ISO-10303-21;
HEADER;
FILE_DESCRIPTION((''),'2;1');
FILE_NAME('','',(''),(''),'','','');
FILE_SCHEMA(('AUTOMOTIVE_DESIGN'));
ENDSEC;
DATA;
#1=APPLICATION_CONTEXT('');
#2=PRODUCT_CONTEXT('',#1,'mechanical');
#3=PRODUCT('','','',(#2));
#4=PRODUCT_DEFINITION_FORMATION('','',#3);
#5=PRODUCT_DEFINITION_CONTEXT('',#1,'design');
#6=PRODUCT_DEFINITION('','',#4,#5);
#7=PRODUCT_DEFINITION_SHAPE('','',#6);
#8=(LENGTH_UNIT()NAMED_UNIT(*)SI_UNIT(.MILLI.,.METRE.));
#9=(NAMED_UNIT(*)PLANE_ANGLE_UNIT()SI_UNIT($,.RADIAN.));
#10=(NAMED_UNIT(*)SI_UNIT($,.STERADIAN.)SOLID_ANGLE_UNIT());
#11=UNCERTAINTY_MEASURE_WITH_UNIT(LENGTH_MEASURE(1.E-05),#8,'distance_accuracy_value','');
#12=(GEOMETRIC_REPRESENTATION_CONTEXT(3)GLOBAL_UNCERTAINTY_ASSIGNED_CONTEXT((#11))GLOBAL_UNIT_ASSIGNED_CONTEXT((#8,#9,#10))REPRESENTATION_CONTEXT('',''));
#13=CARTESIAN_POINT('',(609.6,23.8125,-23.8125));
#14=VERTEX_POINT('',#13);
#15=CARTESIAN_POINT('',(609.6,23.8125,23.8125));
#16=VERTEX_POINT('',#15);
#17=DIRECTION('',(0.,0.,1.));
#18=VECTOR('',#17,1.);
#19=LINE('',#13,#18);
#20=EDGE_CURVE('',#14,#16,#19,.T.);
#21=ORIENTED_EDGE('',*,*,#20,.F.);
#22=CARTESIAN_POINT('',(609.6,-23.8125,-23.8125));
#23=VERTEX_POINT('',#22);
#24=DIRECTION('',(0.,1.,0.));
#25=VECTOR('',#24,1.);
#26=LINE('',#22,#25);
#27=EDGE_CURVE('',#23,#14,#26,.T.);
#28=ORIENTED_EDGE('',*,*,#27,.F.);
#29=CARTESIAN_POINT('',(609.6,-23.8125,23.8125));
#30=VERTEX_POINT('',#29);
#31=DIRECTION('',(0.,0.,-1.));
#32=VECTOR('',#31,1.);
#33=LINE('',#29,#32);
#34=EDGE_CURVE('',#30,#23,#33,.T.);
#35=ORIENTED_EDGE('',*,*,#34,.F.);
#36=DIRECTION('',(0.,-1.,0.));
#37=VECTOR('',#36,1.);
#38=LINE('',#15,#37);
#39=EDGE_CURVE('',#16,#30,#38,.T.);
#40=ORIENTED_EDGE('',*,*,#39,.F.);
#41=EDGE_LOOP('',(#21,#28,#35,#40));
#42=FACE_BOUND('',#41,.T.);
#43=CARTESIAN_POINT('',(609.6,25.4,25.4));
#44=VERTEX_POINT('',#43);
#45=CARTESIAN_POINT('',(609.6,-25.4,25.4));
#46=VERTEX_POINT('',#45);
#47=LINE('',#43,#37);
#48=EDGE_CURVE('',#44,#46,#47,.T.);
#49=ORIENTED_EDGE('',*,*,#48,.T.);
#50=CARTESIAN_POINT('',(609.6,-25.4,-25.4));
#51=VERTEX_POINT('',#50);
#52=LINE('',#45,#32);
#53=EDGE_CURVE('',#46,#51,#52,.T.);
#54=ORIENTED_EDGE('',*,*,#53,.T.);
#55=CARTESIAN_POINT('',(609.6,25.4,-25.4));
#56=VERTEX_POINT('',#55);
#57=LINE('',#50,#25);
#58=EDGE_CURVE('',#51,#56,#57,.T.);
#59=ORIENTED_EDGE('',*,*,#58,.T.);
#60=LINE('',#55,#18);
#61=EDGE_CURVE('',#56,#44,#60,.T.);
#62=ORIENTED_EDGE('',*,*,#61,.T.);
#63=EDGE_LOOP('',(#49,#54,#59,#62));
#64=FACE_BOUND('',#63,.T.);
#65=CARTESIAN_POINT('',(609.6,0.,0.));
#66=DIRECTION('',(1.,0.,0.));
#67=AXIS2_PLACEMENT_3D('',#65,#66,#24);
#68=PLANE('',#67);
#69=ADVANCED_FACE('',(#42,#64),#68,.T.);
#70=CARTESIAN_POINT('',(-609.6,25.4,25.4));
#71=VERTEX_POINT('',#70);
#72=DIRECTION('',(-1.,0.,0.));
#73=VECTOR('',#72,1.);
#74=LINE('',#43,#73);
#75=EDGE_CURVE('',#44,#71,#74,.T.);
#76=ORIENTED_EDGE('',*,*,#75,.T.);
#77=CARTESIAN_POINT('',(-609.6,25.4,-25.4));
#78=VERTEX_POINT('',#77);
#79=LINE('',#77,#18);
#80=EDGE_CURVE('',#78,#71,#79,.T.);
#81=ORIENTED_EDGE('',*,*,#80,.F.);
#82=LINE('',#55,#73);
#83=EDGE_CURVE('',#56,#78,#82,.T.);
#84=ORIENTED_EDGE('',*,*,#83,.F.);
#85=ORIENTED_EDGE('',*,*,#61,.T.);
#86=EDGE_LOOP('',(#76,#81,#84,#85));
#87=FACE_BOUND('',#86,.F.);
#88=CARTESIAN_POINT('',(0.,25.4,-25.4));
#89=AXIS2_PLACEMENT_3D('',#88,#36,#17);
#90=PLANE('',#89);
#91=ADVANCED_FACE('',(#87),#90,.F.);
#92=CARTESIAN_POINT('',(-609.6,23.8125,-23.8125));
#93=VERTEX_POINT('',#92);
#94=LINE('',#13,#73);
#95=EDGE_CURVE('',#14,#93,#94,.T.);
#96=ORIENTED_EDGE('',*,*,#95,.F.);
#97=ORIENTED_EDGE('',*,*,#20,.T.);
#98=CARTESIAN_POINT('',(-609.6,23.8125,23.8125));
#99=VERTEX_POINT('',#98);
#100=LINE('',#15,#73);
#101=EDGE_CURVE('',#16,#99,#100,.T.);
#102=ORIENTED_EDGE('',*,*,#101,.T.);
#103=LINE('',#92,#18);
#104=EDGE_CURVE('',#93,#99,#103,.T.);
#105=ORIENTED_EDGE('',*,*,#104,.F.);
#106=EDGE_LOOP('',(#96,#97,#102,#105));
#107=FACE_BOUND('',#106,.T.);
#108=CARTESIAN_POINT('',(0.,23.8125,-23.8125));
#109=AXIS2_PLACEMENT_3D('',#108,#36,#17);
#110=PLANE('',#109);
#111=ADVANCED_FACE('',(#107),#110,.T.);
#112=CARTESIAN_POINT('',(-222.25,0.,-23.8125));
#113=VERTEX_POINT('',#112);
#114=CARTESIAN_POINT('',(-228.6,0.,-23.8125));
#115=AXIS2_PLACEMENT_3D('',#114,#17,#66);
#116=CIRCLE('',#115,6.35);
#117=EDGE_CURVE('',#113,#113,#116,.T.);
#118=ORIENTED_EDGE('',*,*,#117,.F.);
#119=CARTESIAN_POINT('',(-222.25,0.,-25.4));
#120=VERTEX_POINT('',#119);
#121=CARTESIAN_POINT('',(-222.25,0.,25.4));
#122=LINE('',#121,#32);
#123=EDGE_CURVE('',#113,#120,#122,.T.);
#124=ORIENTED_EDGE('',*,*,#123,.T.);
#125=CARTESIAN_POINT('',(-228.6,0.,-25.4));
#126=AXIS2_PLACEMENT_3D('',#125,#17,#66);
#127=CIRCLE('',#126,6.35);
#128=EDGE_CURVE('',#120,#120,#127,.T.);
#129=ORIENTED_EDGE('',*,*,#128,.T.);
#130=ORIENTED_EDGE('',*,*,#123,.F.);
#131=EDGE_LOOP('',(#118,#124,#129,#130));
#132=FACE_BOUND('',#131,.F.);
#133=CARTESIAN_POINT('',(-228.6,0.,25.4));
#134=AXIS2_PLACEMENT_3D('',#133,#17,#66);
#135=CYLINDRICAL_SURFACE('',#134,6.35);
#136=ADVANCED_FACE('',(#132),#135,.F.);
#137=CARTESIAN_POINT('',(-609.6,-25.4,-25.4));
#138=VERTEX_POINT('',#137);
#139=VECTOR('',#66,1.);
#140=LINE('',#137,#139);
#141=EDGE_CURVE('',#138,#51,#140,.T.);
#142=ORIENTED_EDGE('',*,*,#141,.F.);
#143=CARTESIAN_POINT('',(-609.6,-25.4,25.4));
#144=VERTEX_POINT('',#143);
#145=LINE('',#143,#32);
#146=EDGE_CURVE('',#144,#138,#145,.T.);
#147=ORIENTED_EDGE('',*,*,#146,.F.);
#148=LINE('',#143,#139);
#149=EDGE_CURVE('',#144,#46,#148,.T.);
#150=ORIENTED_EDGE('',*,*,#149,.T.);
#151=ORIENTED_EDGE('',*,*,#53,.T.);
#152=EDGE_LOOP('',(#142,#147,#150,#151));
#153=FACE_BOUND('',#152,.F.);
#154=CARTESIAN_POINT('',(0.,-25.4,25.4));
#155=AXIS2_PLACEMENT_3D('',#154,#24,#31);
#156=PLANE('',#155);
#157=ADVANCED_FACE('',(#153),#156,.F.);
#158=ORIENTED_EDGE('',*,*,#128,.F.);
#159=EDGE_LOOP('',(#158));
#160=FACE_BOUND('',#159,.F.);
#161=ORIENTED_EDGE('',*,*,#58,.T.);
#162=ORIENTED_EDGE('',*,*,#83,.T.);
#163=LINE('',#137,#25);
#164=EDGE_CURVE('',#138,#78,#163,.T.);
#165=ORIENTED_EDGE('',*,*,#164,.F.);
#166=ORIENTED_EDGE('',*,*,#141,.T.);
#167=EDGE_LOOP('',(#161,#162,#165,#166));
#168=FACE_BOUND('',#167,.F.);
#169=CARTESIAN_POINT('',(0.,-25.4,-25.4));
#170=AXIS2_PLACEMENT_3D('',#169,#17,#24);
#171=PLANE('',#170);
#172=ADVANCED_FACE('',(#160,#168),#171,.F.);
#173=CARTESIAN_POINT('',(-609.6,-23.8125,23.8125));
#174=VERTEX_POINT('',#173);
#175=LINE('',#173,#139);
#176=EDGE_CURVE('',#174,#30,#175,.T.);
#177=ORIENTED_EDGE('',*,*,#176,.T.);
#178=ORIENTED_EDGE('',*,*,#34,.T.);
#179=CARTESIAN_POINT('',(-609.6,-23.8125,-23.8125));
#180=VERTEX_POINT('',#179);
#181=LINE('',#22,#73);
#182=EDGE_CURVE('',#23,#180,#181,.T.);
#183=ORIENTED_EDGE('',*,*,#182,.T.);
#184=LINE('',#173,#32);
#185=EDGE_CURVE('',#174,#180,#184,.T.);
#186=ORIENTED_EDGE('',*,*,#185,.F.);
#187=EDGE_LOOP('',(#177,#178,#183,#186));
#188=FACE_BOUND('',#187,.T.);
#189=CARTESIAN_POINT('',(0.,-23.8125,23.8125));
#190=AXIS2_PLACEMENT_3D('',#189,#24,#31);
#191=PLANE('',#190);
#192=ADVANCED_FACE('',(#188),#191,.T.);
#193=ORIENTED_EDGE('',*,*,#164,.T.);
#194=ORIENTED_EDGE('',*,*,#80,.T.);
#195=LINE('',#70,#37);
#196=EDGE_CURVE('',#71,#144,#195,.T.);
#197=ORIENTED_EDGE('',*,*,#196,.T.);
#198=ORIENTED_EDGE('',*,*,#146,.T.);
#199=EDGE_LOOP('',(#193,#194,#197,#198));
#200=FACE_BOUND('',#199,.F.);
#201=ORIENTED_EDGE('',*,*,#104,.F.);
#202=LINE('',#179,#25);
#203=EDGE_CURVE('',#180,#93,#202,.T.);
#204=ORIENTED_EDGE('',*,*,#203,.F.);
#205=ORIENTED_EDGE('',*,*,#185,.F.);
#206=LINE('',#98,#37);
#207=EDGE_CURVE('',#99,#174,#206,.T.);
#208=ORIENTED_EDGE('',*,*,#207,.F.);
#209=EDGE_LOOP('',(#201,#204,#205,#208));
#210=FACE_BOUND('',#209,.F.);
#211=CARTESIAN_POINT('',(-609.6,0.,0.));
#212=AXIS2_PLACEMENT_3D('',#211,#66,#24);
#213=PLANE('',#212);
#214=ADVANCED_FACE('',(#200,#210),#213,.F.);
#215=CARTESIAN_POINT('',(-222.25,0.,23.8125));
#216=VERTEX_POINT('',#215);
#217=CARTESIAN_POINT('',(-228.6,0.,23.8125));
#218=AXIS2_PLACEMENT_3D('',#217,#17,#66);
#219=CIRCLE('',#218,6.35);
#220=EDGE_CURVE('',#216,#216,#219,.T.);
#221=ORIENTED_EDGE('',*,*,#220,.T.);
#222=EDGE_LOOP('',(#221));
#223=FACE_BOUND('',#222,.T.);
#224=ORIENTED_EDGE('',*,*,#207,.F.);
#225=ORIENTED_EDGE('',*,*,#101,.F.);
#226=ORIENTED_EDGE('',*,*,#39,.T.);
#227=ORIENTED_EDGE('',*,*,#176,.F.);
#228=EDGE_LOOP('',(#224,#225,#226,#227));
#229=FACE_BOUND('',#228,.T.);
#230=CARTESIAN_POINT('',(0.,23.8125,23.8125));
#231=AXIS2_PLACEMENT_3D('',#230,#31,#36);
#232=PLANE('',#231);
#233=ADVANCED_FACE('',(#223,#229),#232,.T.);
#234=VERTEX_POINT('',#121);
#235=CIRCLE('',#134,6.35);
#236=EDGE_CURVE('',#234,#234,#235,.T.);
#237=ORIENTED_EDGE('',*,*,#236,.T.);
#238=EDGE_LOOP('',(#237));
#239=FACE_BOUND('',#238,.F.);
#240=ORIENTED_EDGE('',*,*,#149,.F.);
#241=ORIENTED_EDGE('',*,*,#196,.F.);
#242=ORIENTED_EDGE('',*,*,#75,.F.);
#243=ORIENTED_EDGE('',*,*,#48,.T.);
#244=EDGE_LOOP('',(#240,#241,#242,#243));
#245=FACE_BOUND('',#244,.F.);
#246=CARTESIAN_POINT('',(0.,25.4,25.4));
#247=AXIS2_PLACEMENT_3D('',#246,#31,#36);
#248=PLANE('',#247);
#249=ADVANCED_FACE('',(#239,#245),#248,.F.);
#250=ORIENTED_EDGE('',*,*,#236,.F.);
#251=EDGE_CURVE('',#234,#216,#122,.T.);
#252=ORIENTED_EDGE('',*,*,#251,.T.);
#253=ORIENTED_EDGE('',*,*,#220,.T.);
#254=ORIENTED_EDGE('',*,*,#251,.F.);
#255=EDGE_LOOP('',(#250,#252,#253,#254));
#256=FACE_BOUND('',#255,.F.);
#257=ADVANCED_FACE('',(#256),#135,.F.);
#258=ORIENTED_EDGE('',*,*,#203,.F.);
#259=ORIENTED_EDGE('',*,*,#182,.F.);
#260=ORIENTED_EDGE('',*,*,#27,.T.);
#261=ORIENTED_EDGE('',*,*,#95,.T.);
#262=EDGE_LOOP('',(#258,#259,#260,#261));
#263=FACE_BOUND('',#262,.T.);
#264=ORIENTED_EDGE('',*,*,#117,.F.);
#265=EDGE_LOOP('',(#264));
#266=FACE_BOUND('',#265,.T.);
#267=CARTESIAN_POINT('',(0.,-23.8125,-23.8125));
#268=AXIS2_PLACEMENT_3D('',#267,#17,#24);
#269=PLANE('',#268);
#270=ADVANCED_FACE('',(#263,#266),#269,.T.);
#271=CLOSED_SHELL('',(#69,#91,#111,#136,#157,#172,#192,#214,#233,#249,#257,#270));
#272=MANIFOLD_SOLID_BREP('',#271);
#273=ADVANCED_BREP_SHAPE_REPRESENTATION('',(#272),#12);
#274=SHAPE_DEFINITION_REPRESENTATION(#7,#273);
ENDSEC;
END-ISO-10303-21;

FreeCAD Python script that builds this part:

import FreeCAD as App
import Part
import Sketcher

V = App.Vector
Q = App.Units.Quantity


def add_polygon(sketch, points):
    """Adds a closed chain of lines whose ends are joined by coincident constraints."""
    first, n = sketch.GeometryCount, len(points)
    for a, b in zip(points, points[1:] + points[:1]):
        sketch.addGeometry(Part.LineSegment(App.Vector(*a, 0), App.Vector(*b, 0)), False)
    for i in range(n):
        sketch.addConstraint(Sketcher.Constraint("Coincident", first + i, 2, first + (i + 1) % n, 1))

doc = App.newDocument("Part")
params = doc.addObject("Spreadsheet::Sheet", "Params")
for row, (alias, value) in enumerate([
    ("sketch1_width", "2 in"),
    ("pad1_length", "48 in"),
    ("sketch2_diameter", "0.5 in"),
], start=1):
    params.set(f"A{row}", alias)
    params.set(f"B{row}", "=" + value)
    params.setAlias(f"B{row}", alias)

body = doc.addObject("PartDesign::Body", "Body")

sketch1 = body.newObject("Sketcher::SketchObject", "Sketch")
sketch1.AttachmentSupport = (doc.getObject("YZ_Plane"), [""])
sketch1.MapMode = "FlatFace"
add_polygon(sketch1, [(25, 25), (-25, 25), (-25, -25), (25, -25)])
add_polygon(sketch1, [(-24, -24), (-24, 24), (24, 24), (24, -24)])
sketch1.addConstraint([
    Sketcher.Constraint("Horizontal", 0),
    Sketcher.Constraint("Vertical", 1),
    Sketcher.Constraint("Horizontal", 2),
    Sketcher.Constraint("Vertical", 3),
    Sketcher.Constraint("Vertical", 4),
    Sketcher.Constraint("Horizontal", 5),
    Sketcher.Constraint("Vertical", 6),
    Sketcher.Constraint("Horizontal", 7),
    Sketcher.Constraint("Symmetric", 0, 2, 2, 2, -1, 1),
    Sketcher.Constraint("Symmetric", 4, 2, 6, 2, -1, 1),
    Sketcher.Constraint("Equal", 2, 1),
    Sketcher.Constraint("Equal", 7, 4),
    Sketcher.Constraint("DistanceX", 0, 2, 0, 1, Q("2 in")),
    Sketcher.Constraint("DistanceX", 0, 2, 4, 2, Q("0.0625 in")),
])
sketch1.setExpression("Constraints[20]", "Params.sketch1_width")
pad1 = body.newObject("PartDesign::Pad", "Pad")
pad1.Profile = sketch1
pad1.setExpression("Length", "Params.pad1_length")
pad1.Midplane = True

sketch2 = body.newObject("Sketcher::SketchObject", "Sketch001")
sketch2.AttachmentSupport = (doc.getObject("XY_Plane"), [""])
sketch2.MapMode = "FlatFace"
sketch2.AttachmentOffset = App.Placement(V(0, 0, 1 * 25.4), App.Rotation())
sketch2.addGeometry(Part.Circle(V(-229, 0, 0), V(0, 0, 1), 6), False)
sketch2.addConstraint([
    Sketcher.Constraint("PointOnObject", 0, 3, -1),
    Sketcher.Constraint("Diameter", 0, Q("0.5 in")),
    Sketcher.Constraint("DistanceX", 0, 3, -1, 1, Q("9 in")),
])
sketch2.setExpression("Constraints[1]", "Params.sketch2_diameter")
pocket1 = body.newObject("PartDesign::Pocket", "Pocket")
pocket1.Profile = sketch2
pocket1.Type = "ThroughAll"

doc.recompute()
